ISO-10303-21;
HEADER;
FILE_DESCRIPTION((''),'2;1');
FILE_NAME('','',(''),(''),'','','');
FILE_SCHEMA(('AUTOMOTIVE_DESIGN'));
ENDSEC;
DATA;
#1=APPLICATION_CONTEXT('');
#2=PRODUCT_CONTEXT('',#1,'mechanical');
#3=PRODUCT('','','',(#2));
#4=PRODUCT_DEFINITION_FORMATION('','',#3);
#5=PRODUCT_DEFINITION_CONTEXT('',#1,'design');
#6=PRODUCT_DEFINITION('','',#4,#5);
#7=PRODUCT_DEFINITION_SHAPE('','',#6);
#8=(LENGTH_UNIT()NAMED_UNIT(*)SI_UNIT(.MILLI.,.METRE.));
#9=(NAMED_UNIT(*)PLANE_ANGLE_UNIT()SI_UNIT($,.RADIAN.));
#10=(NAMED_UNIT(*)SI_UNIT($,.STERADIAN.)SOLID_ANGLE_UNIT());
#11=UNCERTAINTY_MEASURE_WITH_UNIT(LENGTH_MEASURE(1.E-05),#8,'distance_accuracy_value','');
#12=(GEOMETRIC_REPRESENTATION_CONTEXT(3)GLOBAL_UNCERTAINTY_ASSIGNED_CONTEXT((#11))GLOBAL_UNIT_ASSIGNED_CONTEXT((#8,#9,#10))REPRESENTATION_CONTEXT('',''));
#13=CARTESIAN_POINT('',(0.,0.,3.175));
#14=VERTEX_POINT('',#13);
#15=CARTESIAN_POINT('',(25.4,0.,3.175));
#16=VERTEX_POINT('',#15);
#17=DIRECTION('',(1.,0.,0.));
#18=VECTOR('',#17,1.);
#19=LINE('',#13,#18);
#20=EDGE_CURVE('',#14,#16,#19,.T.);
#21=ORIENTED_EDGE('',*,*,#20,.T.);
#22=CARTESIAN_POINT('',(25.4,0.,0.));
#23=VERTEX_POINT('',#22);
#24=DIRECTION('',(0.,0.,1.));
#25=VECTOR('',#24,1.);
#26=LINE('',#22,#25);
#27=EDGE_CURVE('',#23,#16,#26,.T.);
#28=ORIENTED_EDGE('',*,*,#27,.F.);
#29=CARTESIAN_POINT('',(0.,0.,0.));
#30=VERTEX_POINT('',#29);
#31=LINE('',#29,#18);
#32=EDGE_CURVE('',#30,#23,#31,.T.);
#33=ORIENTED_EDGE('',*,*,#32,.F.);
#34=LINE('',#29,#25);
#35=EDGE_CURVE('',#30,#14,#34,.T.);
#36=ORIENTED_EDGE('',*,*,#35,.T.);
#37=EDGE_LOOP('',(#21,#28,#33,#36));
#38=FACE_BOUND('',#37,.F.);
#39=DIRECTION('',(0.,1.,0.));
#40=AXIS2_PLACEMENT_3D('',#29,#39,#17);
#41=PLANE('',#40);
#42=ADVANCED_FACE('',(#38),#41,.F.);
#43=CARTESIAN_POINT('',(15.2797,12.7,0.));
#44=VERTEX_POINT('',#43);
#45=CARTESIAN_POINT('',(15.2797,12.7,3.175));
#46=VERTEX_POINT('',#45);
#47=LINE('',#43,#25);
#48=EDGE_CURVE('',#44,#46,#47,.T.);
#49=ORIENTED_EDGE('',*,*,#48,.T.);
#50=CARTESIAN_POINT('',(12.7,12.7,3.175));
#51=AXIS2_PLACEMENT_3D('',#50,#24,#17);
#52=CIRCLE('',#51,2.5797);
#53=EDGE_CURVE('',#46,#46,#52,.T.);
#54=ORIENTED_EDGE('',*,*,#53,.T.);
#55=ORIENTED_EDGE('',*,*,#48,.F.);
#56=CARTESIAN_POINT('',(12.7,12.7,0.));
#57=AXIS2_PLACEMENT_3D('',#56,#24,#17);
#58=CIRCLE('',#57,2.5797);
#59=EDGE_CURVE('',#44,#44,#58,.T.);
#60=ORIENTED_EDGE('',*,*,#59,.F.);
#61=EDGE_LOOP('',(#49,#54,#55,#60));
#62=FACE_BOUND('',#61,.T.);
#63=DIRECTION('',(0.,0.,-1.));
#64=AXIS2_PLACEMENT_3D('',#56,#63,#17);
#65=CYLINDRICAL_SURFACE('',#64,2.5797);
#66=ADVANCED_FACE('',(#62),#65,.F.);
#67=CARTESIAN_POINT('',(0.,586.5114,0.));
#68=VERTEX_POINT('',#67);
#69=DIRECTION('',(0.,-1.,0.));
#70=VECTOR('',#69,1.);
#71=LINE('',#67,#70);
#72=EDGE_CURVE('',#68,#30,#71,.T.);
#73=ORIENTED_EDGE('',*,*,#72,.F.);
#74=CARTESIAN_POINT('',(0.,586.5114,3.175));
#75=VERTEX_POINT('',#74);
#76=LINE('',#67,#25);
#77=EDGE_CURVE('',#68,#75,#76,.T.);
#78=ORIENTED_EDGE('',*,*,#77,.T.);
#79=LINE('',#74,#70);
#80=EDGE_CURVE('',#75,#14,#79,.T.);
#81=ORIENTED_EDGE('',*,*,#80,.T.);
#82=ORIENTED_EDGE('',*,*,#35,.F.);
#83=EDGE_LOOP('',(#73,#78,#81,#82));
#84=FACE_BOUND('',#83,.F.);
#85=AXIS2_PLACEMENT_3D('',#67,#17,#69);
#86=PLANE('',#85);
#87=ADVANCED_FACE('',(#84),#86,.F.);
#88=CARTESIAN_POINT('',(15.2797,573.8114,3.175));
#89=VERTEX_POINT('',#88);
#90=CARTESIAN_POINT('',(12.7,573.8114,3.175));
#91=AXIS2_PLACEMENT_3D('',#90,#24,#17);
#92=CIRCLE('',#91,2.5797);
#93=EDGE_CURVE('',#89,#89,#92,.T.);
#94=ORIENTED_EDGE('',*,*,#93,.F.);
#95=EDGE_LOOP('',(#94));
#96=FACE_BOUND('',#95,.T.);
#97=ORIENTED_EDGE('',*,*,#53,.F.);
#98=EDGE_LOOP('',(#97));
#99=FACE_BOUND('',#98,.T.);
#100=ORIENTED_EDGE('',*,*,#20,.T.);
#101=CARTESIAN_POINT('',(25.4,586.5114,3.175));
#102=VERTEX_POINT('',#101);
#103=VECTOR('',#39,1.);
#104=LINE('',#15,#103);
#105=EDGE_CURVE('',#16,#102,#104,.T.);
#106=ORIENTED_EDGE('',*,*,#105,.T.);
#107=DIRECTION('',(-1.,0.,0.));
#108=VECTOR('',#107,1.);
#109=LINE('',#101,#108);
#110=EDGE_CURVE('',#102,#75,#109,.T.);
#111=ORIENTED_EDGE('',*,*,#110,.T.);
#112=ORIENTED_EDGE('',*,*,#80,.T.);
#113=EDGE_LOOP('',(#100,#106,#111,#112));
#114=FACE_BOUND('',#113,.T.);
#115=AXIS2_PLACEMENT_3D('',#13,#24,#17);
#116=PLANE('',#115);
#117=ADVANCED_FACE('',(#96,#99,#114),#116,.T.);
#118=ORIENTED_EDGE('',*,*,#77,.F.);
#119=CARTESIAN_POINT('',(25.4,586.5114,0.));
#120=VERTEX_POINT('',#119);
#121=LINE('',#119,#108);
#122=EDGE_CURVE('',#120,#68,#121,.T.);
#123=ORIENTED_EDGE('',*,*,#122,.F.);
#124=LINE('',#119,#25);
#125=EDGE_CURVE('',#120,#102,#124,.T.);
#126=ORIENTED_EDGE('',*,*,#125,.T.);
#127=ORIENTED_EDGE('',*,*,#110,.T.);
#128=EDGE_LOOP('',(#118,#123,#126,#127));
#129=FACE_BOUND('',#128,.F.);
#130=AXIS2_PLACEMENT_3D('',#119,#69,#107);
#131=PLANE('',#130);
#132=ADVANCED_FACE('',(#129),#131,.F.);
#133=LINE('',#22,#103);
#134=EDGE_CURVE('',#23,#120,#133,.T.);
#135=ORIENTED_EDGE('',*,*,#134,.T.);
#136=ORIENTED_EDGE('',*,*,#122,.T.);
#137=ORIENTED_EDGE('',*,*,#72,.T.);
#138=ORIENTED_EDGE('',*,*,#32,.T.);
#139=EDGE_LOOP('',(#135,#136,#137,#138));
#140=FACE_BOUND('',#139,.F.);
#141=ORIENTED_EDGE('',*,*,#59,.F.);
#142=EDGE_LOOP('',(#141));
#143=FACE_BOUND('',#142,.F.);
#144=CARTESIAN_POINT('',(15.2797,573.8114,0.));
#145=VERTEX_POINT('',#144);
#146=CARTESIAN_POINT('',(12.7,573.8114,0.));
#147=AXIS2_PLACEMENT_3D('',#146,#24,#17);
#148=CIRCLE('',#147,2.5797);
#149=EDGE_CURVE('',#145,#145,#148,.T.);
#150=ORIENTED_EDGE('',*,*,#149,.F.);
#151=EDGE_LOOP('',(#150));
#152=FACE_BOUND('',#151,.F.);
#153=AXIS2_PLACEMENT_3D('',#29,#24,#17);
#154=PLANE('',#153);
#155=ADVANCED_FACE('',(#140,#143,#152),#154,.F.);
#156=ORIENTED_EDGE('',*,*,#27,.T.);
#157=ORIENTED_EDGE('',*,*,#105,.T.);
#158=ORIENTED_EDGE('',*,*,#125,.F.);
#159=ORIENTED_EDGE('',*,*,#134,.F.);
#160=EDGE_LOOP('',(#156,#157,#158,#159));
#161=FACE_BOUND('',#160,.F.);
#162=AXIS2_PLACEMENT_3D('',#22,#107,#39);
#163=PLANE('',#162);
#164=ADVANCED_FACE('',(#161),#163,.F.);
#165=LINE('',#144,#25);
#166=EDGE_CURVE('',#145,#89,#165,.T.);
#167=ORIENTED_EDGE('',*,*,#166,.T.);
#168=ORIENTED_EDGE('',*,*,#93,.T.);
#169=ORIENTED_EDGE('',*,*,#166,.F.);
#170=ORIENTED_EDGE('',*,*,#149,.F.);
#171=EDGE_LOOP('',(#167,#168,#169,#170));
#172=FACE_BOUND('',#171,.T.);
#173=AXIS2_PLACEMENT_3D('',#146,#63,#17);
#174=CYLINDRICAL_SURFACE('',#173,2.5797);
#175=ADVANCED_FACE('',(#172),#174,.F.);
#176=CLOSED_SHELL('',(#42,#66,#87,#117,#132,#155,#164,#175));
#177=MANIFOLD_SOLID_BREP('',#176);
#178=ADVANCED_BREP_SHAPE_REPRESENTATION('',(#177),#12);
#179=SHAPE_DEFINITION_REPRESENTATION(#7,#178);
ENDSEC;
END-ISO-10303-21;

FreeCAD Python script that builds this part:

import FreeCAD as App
import Part
import Sketcher
from FreeCAD import Vector
Q = App.Units.Quantity


def add_polygon(sketch, points):
    """Adds a closed chain of lines whose ends are joined by coincident constraints."""
    first, n = sketch.GeometryCount, len(points)
    for a, b in zip(points, points[1:] + points[:1]):
        sketch.addGeometry(Part.LineSegment(App.Vector(*a, 0), App.Vector(*b, 0)), False)
    for i in range(n):
        sketch.addConstraint(Sketcher.Constraint("Coincident", first + i, 2, first + (i + 1) % n, 1))

doc = App.newDocument("Part")
body = doc.addObject("PartDesign::Body", "Body")

sketch1 = doc.addObject("Sketcher::SketchObject", "Sketch")
body.addObject(sketch1)
sketch1.AttachmentSupport = (doc.XY_Plane, [""])
sketch1.MapMode = "FlatFace"
add_polygon(sketch1, [(0, 586.5), (0, 0), (25.4, 0), (25.4, 586.5)])
sketch1.addGeometry(Part.Circle(Vector(12.7, 12.7, 0), Vector(0, 0, 1), 2.6), False)
sketch1.addGeometry(Part.Circle(Vector(12.7, 573.8, 0), Vector(0, 0, 1), 2.6), False)
sketch1.addConstraint(Sketcher.Constraint("Vertical", 0))
sketch1.addConstraint(Sketcher.Constraint("Horizontal", 1))
sketch1.addConstraint(Sketcher.Constraint("Vertical", 2))
sketch1.addConstraint(Sketcher.Constraint("Horizontal", 3))
sketch1.addConstraint(Sketcher.Constraint("Coincident", 0, 2, -1, 1))
sketch1.addConstraint(Sketcher.Constraint("Equal", 4, 5))
sketch1.addConstraint(Sketcher.Constraint("Vertical", 4, 3, 5, 3))
sketch1.addConstraint(Sketcher.Constraint("DistanceX", 1, 1, 1, 2, Q("1 in")))
sketch1.addConstraint(Sketcher.Constraint("Diameter", 4, Q("0.203126 in")))
sketch1.addConstraint(Sketcher.Constraint("DistanceX", -1, 1, 4, 3, Q("0.5 in")))
sketch1.addConstraint(Sketcher.Constraint("DistanceY", -1, 1, 4, 3, Q("0.5 in")))
sketch1.addConstraint(Sketcher.Constraint("DistanceY", 5, 3, 2, 2, Q("0.5 in")))
sketch1.addConstraint(Sketcher.Constraint("DistanceY", 4, 3, 5, 3, Q("22.091 in")))
pad1 = doc.addObject("PartDesign::Pad", "Pad")
body.addObject(pad1)
pad1.Profile = sketch1
pad1.Length = Q("0.125 in")

doc.recompute()
